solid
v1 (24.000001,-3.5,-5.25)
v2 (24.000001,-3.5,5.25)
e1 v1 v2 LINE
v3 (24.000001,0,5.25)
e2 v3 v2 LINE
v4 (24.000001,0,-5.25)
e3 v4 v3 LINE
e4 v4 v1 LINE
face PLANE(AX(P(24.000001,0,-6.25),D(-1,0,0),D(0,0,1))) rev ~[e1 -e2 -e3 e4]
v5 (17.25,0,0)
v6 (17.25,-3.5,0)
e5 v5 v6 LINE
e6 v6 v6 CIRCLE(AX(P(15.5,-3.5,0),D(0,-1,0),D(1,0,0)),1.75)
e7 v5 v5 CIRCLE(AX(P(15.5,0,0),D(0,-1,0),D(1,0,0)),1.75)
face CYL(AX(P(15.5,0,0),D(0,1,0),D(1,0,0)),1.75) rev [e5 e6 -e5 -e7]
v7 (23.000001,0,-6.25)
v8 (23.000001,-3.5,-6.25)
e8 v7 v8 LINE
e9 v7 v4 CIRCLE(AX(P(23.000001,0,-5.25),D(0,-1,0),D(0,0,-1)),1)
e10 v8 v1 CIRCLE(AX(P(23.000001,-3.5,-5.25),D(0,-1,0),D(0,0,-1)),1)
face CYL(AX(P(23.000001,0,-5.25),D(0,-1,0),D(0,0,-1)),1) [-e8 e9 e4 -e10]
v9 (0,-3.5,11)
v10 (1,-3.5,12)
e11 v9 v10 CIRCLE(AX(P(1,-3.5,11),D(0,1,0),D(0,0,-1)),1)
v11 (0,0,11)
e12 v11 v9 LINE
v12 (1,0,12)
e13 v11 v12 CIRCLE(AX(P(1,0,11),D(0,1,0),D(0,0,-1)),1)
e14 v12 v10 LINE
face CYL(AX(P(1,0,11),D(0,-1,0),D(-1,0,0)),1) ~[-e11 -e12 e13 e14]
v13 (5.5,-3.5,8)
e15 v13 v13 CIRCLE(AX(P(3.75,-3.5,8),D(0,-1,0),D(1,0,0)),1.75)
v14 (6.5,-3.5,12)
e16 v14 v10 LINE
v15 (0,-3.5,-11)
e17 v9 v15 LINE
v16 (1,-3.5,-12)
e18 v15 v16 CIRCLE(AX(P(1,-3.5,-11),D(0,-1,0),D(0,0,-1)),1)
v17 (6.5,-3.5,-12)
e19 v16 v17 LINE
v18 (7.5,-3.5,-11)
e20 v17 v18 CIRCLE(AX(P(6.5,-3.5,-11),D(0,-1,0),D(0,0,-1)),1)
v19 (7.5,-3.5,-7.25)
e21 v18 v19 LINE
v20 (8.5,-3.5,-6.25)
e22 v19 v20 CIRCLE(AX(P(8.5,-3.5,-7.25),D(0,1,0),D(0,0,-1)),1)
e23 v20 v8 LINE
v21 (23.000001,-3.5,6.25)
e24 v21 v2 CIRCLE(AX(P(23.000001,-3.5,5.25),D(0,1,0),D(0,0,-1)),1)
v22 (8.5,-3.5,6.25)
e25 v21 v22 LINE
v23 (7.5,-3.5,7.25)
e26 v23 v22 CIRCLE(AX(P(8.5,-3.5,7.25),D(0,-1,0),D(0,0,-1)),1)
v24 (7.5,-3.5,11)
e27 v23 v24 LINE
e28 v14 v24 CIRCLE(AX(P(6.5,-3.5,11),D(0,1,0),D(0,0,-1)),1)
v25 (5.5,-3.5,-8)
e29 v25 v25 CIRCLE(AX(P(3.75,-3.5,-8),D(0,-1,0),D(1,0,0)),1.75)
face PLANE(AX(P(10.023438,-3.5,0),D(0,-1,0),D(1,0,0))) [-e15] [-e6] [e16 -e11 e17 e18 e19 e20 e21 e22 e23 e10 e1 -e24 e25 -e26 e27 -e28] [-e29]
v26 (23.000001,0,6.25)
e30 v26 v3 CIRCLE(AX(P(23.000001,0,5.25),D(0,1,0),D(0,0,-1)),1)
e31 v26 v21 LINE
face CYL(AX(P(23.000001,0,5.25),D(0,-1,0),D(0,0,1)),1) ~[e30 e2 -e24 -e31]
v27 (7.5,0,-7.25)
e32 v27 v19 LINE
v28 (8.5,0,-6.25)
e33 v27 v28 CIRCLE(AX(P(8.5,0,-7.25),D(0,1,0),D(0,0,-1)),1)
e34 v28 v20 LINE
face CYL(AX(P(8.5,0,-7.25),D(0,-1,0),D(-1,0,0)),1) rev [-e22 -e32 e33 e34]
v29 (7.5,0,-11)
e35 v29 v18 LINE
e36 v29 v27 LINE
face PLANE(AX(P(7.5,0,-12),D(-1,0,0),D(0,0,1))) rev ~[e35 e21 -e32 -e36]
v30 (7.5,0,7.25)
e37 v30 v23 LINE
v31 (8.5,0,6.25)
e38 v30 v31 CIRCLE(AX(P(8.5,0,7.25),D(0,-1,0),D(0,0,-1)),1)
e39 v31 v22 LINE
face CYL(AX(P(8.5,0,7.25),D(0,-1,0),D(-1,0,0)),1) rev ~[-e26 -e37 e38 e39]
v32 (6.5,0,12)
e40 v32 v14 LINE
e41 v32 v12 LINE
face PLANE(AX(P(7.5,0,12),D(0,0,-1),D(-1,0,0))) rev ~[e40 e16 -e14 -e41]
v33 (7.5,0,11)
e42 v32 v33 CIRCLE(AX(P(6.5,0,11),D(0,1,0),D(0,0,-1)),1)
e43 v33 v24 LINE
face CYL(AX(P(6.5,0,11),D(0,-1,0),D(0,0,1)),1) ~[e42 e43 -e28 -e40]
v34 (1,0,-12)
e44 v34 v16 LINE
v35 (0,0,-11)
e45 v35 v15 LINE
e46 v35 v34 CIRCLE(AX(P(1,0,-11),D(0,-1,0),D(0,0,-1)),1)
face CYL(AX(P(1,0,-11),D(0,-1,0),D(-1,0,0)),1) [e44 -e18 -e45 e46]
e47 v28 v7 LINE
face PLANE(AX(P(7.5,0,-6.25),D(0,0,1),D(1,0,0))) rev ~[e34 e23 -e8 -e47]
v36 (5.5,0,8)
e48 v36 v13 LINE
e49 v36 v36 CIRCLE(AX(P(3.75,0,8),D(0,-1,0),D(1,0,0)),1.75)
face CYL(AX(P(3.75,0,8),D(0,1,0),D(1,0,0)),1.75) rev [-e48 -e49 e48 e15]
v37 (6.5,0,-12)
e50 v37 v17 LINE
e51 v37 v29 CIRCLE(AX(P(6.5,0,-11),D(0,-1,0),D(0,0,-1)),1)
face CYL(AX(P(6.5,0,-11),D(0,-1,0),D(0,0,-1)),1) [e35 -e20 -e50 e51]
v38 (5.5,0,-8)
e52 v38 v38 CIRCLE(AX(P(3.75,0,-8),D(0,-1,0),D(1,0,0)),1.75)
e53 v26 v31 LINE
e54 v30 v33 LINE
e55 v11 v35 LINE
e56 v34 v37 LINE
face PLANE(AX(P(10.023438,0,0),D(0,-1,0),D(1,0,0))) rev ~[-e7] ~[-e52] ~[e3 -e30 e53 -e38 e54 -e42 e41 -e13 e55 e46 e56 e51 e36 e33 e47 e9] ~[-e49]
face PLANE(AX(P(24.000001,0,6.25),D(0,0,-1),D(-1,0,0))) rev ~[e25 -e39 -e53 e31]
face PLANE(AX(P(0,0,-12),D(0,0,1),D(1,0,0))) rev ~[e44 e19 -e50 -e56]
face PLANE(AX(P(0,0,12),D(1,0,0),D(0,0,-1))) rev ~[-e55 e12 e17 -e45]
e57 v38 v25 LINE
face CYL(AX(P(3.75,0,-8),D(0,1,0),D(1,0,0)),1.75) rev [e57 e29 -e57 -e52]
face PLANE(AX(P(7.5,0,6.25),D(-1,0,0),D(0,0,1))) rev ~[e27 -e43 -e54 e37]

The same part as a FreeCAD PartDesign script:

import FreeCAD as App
import Part
import Sketcher

V = App.Vector
Q = App.Units.Quantity


def edges_at(feature, points):
    """Names of the edges that pass closest to the given points."""
    edges = feature.Shape.Edges
    near = lambda p: min(range(len(edges)), key=lambda i: edges[i].distToShape(Part.Vertex(*p))[0])
    return sorted({f"Edge{near(p) + 1}" for p in points})

doc = App.newDocument("Part")
params = doc.addObject("Spreadsheet::Sheet", "Params")
for row, (alias, value) in enumerate([
    ("sketch1_diameter", "3.5 mm"),
    ("sketch1_height", "24 mm"),
    ("sketch1_width", "7.5 mm"),
    ("sketch1_width2", "16.500001 mm"),
    ("sketch1_height2", "12.5 mm"),
    ("pad1_length", "3.5 mm"),
    ("fillet_radius", "1 mm"),
], start=1):
    params.set(f"A{row}", alias)
    params.set(f"B{row}", "=" + value)
    params.setAlias(f"B{row}", alias)

body = doc.addObject("PartDesign::Body", "Body")

# Sketch on XZ plane
sketch1 = body.newObject("Sketcher::SketchObject", "Sketch")
sketch1.AttachmentSupport = (doc.getObject("XZ_Plane"), [""])
sketch1.MapMode = "FlatFace"
sketch1.addGeometry(Part.LineSegment(V(0, 12, 0), V(0, -12, 0)), False)
sketch1.addGeometry(Part.LineSegment(V(0, -12, 0), V(7.5, -12, 0)), False)
sketch1.addGeometry(Part.LineSegment(V(7.5, -12, 0), V(7.5, -6.25, 0)), False)
sketch1.addGeometry(Part.LineSegment(V(7.5, -6.25, 0), V(24.000001, -6.25, 0)), False)
sketch1.addGeometry(Part.LineSegment(V(24.000001, -6.25, 0), V(24.000001, 6.25, 0)), False)
sketch1.addGeometry(Part.LineSegment(V(24.000001, 6.25, 0), V(7.5, 6.25, 0)), False)
sketch1.addGeometry(Part.LineSegment(V(7.5, 6.25, 0), V(7.5, 12, 0)), False)
sketch1.addGeometry(Part.LineSegment(V(7.5, 12, 0), V(0, 12, 0)), False)
sketch1.addGeometry(Part.Circle(V(3.75, -8, 0), V(0, 0, 1), 1.75), False)
sketch1.addGeometry(Part.Circle(V(3.75, 8, 0), V(0, 0, 1), 1.75), False)
sketch1.addGeometry(Part.Circle(V(15.5, 0, 0), V(0, 0, 1), 1.75), False)
sketch1.addConstraint(Sketcher.Constraint("Coincident", 0, 2, 1, 1))
sketch1.addConstraint(Sketcher.Constraint("Coincident", 1, 2, 2, 1))
sketch1.addConstraint(Sketcher.Constraint("Coincident", 2, 2, 3, 1))
sketch1.addConstraint(Sketcher.Constraint("Coincident", 3, 2, 4, 1))
sketch1.addConstraint(Sketcher.Constraint("Coincident", 4, 2, 5, 1))
sketch1.addConstraint(Sketcher.Constraint("Coincident", 5, 2, 6, 1))
sketch1.addConstraint(Sketcher.Constraint("Coincident", 6, 2, 7, 1))
sketch1.addConstraint(Sketcher.Constraint("Coincident", 7, 2, 0, 1))
sketch1.addConstraint(Sketcher.Constraint("Vertical", 0))
sketch1.addConstraint(Sketcher.Constraint("Horizontal", 1))
sketch1.addConstraint(Sketcher.Constraint("Vertical", 2))
sketch1.addConstraint(Sketcher.Constraint("Horizontal", 3))
sketch1.addConstraint(Sketcher.Constraint("Vertical", 4))
sketch1.addConstraint(Sketcher.Constraint("Horizontal", 5))
sketch1.addConstraint(Sketcher.Constraint("Vertical", 6))
sketch1.addConstraint(Sketcher.Constraint("Horizontal", 7))
sketch1.addConstraint(Sketcher.Constraint("Equal", 8, 9))
sketch1.addConstraint(Sketcher.Constraint("Equal", 9, 10))
sketch1.addConstraint(Sketcher.Constraint("Symmetric", 0, 2, 7, 2, -1, 1))
sketch1.addConstraint(Sketcher.Constraint("Symmetric", 8, 3, 9, 3, -1))
sketch1.addConstraint(Sketcher.Constraint("Symmetric", 2, 2, 5, 2, -1))
sketch1.addConstraint(Sketcher.Constraint("PointOnObject", 10, 3, -1))
sketch1.addConstraint(Sketcher.Constraint("Diameter", 8, Q("3.5 mm")))
sketch1.addConstraint(Sketcher.Constraint("DistanceY", 0, 2, 0, 1, Q("24 mm")))
sketch1.addConstraint(Sketcher.Constraint("DistanceX", 1, 1, 1, 2, Q("7.5 mm")))
sketch1.addConstraint(Sketcher.Constraint("DistanceX", 3, 1, 3, 2, Q("16.500001 mm")))
sketch1.addConstraint(Sketcher.Constraint("DistanceY", 4, 1, 4, 2, Q("12.5 mm")))
sketch1.addConstraint(Sketcher.Constraint("DistanceY", 8, 3, -1, 1, Q("8 mm")))
sketch1.addConstraint(Sketcher.Constraint("DistanceX", 1, 2, 10, 3, Q("8 mm")))
sketch1.addConstraint(Sketcher.Constraint("DistanceX", -1, 1, 8, 3, Q("3.75 mm")))
sketch1.setExpression("Constraints[22]", "Params.sketch1_diameter")
sketch1.setExpression("Constraints[23]", "Params.sketch1_height")
sketch1.setExpression("Constraints[24]", "Params.sketch1_width")
sketch1.setExpression("Constraints[25]", "Params.sketch1_width2")
sketch1.setExpression("Constraints[26]", "Params.sketch1_height2")
pad1 = body.newObject("PartDesign::Pad", "Pad")
pad1.Profile = sketch1
pad1.setExpression("Length", "Params.pad1_length")
doc.recompute()

fillet = body.newObject("PartDesign::Fillet", "Fillet")
fillet.Base = (pad1, edges_at(pad1, [
    (7.5, -1.75, -12),
    (24, -1.75, -6.25),
    (0, -1.75, -12),
    (24, -1.75, 6.25),
    (7.5, -1.75, 12),
    (7.5, -1.75, 6.25),
    (0, -1.75, 12),
    (7.5, -1.75, -6.25),
]))
fillet.setExpression("Radius", "Params.fillet_radius")

doc.recompute()
